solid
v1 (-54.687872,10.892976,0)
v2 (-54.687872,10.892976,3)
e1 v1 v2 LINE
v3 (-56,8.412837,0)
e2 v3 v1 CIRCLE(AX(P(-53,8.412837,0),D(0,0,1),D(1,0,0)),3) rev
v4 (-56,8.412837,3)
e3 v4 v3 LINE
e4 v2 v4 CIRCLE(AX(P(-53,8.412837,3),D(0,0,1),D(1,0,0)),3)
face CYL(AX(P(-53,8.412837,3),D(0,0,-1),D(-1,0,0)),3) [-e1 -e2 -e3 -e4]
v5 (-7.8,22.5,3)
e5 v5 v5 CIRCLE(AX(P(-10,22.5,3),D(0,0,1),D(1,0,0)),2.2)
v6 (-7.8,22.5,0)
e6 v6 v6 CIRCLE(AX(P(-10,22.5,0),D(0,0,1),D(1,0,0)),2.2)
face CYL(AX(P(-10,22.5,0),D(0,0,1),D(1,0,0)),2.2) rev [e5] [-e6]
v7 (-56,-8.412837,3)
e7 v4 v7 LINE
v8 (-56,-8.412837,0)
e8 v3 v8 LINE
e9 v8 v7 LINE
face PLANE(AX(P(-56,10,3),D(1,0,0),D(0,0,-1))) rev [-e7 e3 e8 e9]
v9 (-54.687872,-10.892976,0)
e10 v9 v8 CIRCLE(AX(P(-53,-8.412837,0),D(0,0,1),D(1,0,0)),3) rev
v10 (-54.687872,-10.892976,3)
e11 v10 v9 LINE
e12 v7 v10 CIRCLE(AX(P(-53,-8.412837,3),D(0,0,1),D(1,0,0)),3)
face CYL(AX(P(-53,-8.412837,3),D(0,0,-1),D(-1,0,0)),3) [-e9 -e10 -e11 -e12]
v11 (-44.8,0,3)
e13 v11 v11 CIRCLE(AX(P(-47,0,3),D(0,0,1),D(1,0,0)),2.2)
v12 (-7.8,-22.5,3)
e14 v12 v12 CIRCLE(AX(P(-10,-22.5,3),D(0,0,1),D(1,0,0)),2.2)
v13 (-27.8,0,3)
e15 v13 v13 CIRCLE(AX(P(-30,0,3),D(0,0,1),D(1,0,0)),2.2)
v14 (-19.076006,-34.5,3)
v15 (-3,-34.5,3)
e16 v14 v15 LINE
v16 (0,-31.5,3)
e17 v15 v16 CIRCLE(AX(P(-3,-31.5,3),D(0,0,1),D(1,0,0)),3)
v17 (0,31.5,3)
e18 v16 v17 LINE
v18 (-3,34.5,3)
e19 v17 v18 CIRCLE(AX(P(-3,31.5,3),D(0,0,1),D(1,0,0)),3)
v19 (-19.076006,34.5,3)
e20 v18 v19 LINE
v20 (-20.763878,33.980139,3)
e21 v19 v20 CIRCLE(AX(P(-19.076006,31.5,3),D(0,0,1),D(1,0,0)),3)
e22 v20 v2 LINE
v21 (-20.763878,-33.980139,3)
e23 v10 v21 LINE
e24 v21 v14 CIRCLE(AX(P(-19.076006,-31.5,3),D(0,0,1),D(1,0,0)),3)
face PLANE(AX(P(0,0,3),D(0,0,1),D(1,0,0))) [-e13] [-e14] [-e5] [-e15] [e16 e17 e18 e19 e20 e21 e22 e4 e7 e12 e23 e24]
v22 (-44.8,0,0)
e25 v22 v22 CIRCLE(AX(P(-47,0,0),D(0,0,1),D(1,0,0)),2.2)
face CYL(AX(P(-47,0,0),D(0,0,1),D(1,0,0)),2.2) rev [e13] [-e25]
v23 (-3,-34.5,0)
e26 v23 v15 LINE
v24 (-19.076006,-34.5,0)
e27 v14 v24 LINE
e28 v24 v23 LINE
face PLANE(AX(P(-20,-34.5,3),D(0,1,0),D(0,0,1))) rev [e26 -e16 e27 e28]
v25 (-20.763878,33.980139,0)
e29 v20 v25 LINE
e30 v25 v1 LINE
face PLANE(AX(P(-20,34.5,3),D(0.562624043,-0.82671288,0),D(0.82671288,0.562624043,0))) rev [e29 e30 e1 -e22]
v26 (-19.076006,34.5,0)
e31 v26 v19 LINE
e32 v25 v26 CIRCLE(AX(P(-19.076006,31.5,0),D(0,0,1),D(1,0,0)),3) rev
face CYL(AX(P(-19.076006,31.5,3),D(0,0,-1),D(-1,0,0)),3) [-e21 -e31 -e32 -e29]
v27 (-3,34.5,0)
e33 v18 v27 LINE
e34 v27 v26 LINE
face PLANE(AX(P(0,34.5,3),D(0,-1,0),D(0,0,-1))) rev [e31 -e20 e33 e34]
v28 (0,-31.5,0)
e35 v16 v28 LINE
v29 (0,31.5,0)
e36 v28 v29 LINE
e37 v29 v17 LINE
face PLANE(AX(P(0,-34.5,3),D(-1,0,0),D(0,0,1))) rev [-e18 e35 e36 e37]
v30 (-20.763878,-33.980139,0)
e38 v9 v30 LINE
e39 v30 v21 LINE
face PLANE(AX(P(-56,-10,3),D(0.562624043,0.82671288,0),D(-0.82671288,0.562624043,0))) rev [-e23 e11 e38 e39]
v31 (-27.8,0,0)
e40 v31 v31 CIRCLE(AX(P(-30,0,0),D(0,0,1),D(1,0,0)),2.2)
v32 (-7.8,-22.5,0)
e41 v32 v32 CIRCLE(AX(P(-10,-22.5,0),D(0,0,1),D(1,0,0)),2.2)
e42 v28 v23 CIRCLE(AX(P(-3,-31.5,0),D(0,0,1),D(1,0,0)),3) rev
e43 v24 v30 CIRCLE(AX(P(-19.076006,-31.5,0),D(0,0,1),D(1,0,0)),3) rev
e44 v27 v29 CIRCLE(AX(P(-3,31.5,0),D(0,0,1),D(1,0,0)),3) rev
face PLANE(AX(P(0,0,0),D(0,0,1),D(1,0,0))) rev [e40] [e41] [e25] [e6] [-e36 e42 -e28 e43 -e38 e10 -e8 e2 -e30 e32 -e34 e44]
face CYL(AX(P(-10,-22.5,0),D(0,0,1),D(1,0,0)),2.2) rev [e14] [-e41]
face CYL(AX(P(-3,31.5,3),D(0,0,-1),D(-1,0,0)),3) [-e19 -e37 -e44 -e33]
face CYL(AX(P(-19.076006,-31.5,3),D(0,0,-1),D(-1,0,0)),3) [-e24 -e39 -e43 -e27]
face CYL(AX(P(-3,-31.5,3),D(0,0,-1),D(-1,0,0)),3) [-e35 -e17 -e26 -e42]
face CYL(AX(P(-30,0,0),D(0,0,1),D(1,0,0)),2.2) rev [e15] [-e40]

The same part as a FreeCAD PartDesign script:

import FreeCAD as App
import Part
import Sketcher
from FreeCAD import Vector


def edges_at(feature, points):
    """Names of the edges that pass closest to the given points."""
    edges = feature.Shape.Edges
    near = lambda p: min(range(len(edges)), key=lambda i: edges[i].distToShape(Part.Vertex(*p))[0])
    return sorted({f"Edge{near(p) + 1}" for p in points})

doc = App.newDocument("Part")
body = doc.addObject("PartDesign::Body", "Body")

# Sketch on XY plane
sketch1 = doc.addObject("Sketcher::SketchObject", "Sketch")
body.addObject(sketch1)
sketch1.AttachmentSupport = (doc.XY_Plane, [""])
sketch1.MapMode = "FlatFace"
sketch1.addGeometry([
    Part.LineSegment(Vector(0, -34.5, 0), Vector(0, 34.5, 0)),  # 0
    Part.LineSegment(Vector(0, 34.5, 0), Vector(-20, 34.5, 0)),  # 1
    Part.LineSegment(Vector(-20, 34.5, 0), Vector(-56, 10, 0)),  # 2
    Part.LineSegment(Vector(-56, 10, 0), Vector(-56, -10, 0)),  # 3
    Part.LineSegment(Vector(-56, -10, 0), Vector(-20, -34.5, 0)),  # 4
    Part.LineSegment(Vector(-20, -34.5, 0), Vector(0, -34.5, 0)),  # 5
], False)
sketch1.addConstraint([
    Sketcher.Constraint("Coincident", 0, 2, 1, 1),
    Sketcher.Constraint("Coincident", 1, 2, 2, 1),
    Sketcher.Constraint("Coincident", 2, 2, 3, 1),
    Sketcher.Constraint("Coincident", 3, 2, 4, 1),
    Sketcher.Constraint("Coincident", 4, 2, 5, 1),
    Sketcher.Constraint("Coincident", 5, 2, 0, 1),
    Sketcher.Constraint("Vertical", 0),
    Sketcher.Constraint("Horizontal", 1),
    Sketcher.Constraint("Vertical", 3),
    Sketcher.Constraint("Horizontal", 5),
    Sketcher.Constraint("Symmetric", 0, 2, 5, 2, -1, 1),
    Sketcher.Constraint("Vertical", 1, 2, 4, 2),
    Sketcher.Constraint("Equal", 5, 3),
    Sketcher.Constraint("Equal", 2, 4),
    Sketcher.Constraint("DistanceX", 1, 2, 1, 1, 20.0),
    Sketcher.Constraint("DistanceY", 0, 1, 0, 2, 69.0),
    Sketcher.Constraint("DistanceX", 2, 2, -1, 1, 56.0),
])
pad1 = doc.addObject("PartDesign::Pad", "Pad")
body.addObject(pad1)
pad1.Profile = sketch1
pad1.Length = 3

# Sketch on XY plane
sketch2 = doc.addObject("Sketcher::SketchObject", "Sketch001")
body.addObject(sketch2)
sketch2.AttachmentSupport = (doc.XY_Plane, [""])
sketch2.MapMode = "FlatFace"
sketch2.AttachmentOffset = App.Placement(Vector(0, 0, 3), App.Rotation())
sketch2.addGeometry([
    Part.Circle(Vector(-47, 0, 0), Vector(0, 0, 1), 2.2),
    Part.Circle(Vector(-30, 0, 0), Vector(0, 0, 1), 2.2),
    Part.Circle(Vector(-10, 22.5, 0), Vector(0, 0, 1), 2.2),
    Part.Circle(Vector(-10, -22.5, 0), Vector(0, 0, 1), 2.2),
], False)
sketch2.addConstraint([
    Sketcher.Constraint("Equal", 0, 1),
    Sketcher.Constraint("Equal", 1, 2),
    Sketcher.Constraint("Equal", 2, 3),
    Sketcher.Constraint("Symmetric", 2, 3, 3, 3, -1),
    Sketcher.Constraint("PointOnObject", 0, 3, -1),
    Sketcher.Constraint("PointOnObject", 1, 3, -1),
    Sketcher.Constraint("Diameter", 0, 4.4),
    Sketcher.Constraint("DistanceX", 0, 3, -1, 1, 47.0),
    Sketcher.Constraint("DistanceX", 1, 3, -1, 1, 30.0),
    Sketcher.Constraint("DistanceX", 2, 3, -1, 1, 10.0),
    Sketcher.Constraint("DistanceY", 3, 3, 2, 3, 45.0),
])
pocket1 = doc.addObject("PartDesign::Pocket", "Pocket")
body.addObject(pocket1)
pocket1.Profile = sketch2
pocket1.Type = "ThroughAll"
doc.recompute()

fillet = doc.addObject("PartDesign::Fillet", "Fillet")
body.addObject(fillet)
fillet.Base = (pocket1, edges_at(pocket1, [
    (-20, -34.5, 1.5),
    (-56, -10, 1.5),
    (-56, 10, 1.5),
    (-20, 34.5, 1.5),
    (0, 34.5, 1.5),
    (0, -34.5, 1.5),
]))
fillet.Radius = 3

doc.recompute()
